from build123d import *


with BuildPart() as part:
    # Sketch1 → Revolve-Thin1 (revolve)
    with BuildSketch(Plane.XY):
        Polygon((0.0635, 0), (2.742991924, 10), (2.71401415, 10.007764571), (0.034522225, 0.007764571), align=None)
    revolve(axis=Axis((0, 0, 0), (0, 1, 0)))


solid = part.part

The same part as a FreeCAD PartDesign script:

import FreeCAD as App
import Part
import Sketcher
Q = App.Units.Quantity

doc = App.newDocument("Part")
body = doc.addObject("PartDesign::Body", "Body")

sketch1 = body.newObject("Sketcher::SketchObject", "Sketch")
sketch1.AttachmentSupport = (doc.getObject("XY_Plane"), [""])
sketch1.MapMode = "FlatFace"
sketch1.addGeometry(Part.LineSegment(App.Vector(0.064, 0, 0), App.Vector(2.743, 10, 0)), False)
sketch1.addGeometry(Part.LineSegment(App.Vector(2.743, 10, 0), App.Vector(2.714, 10.008, 0)), False)
sketch1.addGeometry(Part.LineSegment(App.Vector(2.714, 10.008, 0), App.Vector(0.035, 0.008, 0)), False)
sketch1.addGeometry(Part.LineSegment(App.Vector(0.035, 0.008, 0), App.Vector(0.064, 0, 0)), False)
sketch1.addConstraint(Sketcher.Constraint("Coincident", 0, 2, 1, 1))
sketch1.addConstraint(Sketcher.Constraint("Coincident", 1, 2, 2, 1))
sketch1.addConstraint(Sketcher.Constraint("Coincident", 2, 2, 3, 1))
sketch1.addConstraint(Sketcher.Constraint("Coincident", 3, 2, 0, 1))
sketch1.addConstraint(Sketcher.Constraint("PointOnObject", 3, 2, -1))
sketch1.addConstraint(Sketcher.Constraint("Perpendicular", 0, 1))
sketch1.addConstraint(Sketcher.Constraint("Perpendicular", 1, 2))
sketch1.addConstraint(Sketcher.Constraint("Perpendicular", 2, 3))
sketch1.addConstraint(Sketcher.Constraint("Angle", 0, Q("75 deg")))
sketch1.addConstraint(Sketcher.Constraint("DistanceY", -1, 1, 0, 2, 10.0))
sketch1.addConstraint(Sketcher.Constraint("Distance", 1, 0.03))
sketch1.addConstraint(Sketcher.Constraint("DistanceX", -1, 1, 3, 2, 0.0635))
revolution = body.newObject("PartDesign::Revolution", "Revolution")
revolution.Profile = sketch1
revolution.ReferenceAxis = (sketch1, ["V_Axis"])
revolution.Angle = 360

doc.recompute()
